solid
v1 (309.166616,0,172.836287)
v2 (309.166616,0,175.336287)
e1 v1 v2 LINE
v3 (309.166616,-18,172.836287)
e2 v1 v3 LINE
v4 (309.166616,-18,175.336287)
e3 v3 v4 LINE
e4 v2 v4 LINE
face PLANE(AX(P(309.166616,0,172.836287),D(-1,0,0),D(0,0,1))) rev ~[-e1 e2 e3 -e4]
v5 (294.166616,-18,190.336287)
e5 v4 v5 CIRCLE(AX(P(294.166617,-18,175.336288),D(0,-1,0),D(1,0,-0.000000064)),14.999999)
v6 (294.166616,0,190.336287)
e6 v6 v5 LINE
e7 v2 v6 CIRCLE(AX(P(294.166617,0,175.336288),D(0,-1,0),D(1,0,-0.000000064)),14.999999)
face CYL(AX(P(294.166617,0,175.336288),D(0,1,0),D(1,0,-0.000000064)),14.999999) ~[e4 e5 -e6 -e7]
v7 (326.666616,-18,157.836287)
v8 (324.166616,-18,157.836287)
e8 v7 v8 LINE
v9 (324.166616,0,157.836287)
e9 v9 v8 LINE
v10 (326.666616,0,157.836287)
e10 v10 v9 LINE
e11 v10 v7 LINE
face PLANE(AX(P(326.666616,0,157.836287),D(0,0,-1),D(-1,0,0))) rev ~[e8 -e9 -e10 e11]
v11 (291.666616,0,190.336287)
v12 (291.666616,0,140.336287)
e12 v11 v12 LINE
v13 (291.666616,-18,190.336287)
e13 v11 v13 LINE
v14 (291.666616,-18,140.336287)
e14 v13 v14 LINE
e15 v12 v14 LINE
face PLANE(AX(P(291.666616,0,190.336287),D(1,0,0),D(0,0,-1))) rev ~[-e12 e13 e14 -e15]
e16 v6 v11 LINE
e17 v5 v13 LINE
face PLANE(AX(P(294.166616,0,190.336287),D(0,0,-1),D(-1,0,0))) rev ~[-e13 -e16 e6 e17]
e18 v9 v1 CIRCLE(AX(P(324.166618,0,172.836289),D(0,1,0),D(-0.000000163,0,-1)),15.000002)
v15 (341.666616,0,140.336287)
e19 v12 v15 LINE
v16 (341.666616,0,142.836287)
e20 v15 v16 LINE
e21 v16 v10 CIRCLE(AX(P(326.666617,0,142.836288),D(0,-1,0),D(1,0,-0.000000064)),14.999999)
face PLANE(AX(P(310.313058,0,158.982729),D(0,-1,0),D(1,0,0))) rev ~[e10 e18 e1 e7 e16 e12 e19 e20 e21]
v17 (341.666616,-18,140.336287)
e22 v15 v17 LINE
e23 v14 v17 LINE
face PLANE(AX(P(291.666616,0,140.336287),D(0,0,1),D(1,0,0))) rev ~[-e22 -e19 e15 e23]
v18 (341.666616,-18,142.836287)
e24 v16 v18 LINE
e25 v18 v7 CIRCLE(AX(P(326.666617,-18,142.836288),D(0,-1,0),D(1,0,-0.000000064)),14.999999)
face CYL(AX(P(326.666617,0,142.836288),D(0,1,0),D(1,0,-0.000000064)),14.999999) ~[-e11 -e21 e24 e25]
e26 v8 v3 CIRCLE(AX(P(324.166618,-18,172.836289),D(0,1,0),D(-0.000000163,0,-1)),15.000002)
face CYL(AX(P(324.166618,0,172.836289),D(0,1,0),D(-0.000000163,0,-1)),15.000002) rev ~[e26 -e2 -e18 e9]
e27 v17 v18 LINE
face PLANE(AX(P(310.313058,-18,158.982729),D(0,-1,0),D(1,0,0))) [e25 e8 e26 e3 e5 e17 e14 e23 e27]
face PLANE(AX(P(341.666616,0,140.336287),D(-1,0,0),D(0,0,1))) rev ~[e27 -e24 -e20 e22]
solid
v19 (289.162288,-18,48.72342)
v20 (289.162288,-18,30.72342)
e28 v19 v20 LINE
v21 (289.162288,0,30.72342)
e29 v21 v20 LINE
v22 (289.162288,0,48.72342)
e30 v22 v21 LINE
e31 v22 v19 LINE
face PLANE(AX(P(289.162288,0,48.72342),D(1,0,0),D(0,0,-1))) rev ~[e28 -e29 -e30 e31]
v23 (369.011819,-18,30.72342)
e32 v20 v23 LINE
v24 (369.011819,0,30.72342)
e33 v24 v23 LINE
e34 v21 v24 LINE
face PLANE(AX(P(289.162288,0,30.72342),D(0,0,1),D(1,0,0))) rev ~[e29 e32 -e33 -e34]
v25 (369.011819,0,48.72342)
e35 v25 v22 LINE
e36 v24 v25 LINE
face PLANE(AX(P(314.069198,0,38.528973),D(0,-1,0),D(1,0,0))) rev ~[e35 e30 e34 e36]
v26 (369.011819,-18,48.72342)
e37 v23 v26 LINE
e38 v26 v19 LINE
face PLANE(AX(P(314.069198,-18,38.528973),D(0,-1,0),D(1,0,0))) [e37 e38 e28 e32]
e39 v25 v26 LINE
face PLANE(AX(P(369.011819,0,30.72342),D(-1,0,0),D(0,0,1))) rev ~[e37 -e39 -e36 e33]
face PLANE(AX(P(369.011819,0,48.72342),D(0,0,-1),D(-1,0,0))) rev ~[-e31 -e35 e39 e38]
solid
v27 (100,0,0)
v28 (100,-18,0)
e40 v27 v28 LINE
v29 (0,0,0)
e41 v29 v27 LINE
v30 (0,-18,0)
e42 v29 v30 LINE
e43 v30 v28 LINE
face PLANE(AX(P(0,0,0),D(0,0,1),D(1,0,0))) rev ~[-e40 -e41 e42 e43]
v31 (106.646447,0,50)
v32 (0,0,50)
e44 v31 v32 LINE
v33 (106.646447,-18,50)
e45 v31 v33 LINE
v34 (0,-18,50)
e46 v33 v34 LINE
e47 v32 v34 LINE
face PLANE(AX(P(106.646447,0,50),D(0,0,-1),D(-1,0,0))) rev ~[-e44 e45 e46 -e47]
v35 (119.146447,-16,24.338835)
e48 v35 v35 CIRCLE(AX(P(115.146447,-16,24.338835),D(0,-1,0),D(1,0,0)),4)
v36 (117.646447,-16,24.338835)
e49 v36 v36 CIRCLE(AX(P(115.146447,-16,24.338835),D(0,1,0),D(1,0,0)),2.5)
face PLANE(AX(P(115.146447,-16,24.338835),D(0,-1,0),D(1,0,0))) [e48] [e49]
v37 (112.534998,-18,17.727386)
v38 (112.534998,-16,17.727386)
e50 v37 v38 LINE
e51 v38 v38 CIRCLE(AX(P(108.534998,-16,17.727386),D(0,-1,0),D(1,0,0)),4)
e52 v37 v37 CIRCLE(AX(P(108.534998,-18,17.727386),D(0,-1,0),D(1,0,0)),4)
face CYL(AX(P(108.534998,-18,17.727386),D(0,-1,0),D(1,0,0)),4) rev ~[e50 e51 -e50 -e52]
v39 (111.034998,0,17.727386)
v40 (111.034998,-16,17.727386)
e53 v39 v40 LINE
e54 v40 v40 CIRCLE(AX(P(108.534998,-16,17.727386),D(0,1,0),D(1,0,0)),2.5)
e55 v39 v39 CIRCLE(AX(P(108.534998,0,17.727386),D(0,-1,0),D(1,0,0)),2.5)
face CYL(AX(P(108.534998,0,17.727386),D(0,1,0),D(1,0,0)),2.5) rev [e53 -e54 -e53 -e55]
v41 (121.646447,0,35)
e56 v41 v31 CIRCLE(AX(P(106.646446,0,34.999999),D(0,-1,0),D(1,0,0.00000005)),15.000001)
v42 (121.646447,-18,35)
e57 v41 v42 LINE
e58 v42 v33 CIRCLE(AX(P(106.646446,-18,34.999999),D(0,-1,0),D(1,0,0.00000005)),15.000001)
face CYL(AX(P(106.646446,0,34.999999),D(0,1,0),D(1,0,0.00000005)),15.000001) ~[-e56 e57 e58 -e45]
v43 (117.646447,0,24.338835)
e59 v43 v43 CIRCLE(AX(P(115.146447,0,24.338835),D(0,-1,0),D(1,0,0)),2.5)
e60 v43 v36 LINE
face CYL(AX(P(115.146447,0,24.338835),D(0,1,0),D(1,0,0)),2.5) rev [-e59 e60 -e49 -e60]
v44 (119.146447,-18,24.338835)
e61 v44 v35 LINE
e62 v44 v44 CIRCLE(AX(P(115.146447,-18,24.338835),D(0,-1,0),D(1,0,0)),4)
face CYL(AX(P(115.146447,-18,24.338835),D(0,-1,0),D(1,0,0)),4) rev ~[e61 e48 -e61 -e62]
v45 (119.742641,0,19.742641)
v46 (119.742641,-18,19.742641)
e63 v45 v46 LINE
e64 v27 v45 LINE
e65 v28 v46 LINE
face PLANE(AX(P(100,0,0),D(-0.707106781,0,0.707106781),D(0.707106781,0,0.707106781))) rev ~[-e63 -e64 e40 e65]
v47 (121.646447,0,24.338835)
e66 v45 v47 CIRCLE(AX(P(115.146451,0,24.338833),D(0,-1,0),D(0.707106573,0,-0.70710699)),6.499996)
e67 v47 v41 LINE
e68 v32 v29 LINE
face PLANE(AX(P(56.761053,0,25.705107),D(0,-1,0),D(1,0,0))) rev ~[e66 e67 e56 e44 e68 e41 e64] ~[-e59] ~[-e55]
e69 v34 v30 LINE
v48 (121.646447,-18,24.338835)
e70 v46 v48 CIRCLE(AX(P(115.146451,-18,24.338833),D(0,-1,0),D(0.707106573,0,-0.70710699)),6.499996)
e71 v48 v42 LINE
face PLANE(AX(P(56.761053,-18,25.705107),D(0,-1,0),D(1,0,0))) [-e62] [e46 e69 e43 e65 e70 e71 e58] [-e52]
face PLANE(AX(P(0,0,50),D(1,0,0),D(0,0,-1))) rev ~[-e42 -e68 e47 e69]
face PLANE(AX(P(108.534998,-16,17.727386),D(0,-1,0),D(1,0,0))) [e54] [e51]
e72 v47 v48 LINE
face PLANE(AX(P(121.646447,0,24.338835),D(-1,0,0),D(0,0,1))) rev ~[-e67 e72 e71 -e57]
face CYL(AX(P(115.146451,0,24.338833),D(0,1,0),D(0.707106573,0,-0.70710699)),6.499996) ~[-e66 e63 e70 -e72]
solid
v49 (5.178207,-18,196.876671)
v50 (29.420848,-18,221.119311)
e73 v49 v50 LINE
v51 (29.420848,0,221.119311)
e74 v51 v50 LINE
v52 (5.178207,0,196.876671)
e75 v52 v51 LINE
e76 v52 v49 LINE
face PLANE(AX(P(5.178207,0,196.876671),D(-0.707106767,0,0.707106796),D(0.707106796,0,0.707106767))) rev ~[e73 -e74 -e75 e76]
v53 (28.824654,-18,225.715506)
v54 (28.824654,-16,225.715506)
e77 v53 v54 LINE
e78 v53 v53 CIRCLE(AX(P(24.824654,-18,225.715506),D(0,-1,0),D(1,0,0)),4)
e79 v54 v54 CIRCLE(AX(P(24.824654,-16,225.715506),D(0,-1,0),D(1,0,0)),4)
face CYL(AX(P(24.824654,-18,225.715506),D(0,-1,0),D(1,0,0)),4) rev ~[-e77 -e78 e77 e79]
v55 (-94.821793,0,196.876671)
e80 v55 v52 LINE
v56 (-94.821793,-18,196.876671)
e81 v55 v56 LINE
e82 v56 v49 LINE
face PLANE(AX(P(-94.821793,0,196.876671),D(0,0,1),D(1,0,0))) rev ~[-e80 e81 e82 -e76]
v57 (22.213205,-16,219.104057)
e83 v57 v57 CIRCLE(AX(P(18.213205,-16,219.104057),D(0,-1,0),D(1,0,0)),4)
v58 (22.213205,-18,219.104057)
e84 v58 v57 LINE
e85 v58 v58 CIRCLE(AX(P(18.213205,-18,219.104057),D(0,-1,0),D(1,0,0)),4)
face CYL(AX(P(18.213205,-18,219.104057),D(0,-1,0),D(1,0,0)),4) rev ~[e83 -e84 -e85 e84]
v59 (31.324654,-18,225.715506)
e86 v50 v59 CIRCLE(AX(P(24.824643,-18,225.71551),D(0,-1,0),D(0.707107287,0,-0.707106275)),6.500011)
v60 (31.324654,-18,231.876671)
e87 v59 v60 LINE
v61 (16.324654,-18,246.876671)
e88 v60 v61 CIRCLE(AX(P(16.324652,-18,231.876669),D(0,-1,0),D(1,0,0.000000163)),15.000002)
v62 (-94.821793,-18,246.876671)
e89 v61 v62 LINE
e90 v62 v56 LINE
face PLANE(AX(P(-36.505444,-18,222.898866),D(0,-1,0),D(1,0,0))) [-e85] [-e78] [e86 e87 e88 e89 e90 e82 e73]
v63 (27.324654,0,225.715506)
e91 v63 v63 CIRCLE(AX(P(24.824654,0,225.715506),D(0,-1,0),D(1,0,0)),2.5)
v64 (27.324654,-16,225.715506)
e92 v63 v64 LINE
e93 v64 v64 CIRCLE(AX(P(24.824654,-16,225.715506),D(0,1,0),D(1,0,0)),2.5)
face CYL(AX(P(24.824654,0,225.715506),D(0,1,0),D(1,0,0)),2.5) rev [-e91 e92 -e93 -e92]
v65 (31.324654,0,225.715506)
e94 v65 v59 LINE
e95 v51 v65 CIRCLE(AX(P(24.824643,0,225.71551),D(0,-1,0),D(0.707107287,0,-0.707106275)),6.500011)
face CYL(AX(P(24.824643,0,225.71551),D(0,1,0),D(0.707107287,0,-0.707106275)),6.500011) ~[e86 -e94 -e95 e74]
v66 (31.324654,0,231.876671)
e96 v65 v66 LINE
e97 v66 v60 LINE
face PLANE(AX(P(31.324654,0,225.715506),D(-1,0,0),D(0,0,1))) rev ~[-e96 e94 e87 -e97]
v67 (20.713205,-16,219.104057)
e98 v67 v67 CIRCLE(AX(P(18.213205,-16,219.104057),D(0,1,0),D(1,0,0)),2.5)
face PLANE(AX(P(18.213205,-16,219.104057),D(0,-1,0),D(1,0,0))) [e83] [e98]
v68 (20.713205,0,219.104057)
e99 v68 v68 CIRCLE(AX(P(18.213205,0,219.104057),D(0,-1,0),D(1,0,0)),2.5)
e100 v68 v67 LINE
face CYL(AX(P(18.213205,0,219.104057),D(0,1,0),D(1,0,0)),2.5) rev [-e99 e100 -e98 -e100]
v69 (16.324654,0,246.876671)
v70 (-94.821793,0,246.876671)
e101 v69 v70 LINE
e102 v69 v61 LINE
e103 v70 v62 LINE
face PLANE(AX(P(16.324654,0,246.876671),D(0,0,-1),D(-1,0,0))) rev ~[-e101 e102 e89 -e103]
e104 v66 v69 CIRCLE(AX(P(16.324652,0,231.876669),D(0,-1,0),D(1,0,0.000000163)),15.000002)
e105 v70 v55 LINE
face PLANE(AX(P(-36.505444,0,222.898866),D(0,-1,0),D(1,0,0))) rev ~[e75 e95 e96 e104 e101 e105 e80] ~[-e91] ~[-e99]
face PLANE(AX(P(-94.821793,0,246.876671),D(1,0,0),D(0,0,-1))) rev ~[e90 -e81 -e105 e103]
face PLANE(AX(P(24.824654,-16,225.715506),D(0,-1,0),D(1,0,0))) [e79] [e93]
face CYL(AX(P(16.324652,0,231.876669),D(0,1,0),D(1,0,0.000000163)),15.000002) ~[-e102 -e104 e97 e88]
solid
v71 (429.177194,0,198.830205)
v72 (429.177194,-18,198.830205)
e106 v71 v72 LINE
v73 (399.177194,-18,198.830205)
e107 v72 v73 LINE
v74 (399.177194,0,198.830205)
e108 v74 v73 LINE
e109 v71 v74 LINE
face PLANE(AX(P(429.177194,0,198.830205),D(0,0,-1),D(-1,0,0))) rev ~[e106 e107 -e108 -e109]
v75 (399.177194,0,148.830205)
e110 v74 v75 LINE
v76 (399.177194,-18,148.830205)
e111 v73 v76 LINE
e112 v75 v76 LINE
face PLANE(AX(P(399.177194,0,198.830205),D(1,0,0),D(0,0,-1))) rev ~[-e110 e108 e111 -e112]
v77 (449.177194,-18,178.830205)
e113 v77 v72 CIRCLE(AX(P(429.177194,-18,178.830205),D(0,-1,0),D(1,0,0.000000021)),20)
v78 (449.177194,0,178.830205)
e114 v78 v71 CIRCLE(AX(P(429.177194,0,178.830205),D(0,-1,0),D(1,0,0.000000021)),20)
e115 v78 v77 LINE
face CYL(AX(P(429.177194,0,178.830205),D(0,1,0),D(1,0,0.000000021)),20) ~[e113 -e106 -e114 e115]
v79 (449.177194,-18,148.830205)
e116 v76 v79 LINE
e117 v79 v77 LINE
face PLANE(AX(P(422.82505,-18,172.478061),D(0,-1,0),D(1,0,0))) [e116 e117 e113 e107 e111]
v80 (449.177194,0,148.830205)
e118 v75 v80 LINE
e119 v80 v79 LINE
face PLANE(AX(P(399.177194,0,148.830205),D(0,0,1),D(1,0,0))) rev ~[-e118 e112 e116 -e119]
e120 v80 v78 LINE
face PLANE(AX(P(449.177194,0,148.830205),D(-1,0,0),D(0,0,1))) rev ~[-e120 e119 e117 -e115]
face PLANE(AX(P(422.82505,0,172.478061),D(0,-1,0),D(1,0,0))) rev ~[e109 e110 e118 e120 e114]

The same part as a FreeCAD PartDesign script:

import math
import FreeCAD as App
import Part
import Sketcher
Q = App.Units.Quantity

doc = App.newDocument("Part")
body = doc.addObject("PartDesign::Body", "Body")
body.AllowCompound = True

# Sketch on XZ plane
sketch1 = doc.addObject("Sketcher::SketchObject", "Sketch")
body.addObject(sketch1)
sketch1.AttachmentSupport = (doc.XZ_Plane, [""])
sketch1.MapMode = "FlatFace"
sketch1.addGeometry([
    Part.LineSegment(App.Vector(0, 50, 0), App.Vector(0, 0, 0)),  # 0
    Part.LineSegment(App.Vector(0, 0, 0), App.Vector(100, 0, 0)),  # 1
    Part.LineSegment(App.Vector(100, 0, 0), App.Vector(119.742641, 19.742641, 0)),  # 2
    Part.ArcOfCircle(Part.Circle(App.Vector(115.146451, 24.338833, 0), App.Vector(0, 0, 1), 6.499996), math.radians(-45.000017), math.radians(0.000015)),  # 3
    Part.LineSegment(App.Vector(121.646447, 24.338835, 0), App.Vector(121.646447, 35, 0)),  # 4
    Part.ArcOfCircle(Part.Circle(App.Vector(106.646446, 34.999999, 0), App.Vector(0, 0, 1), 15.000001), math.radians(0.000003), math.radians(89.999997)),  # 5
    Part.LineSegment(App.Vector(106.646447, 50, 0), App.Vector(0, 50, 0)),  # 6
    Part.Circle(App.Vector(108.534998, 17.727386, 0), App.Vector(0, 0, 1), 2.5),  # 7
    Part.Circle(App.Vector(115.146447, 24.338835, 0), App.Vector(0, 0, 1), 2.5),  # 8
    Part.LineSegment(App.Vector(289.162288, 48.72342, 0), App.Vector(289.162288, 30.72342, 0)),  # 9
    Part.LineSegment(App.Vector(289.162288, 30.72342, 0), App.Vector(369.011819, 30.72342, 0)),  # 10
    Part.LineSegment(App.Vector(369.011819, 30.72342, 0), App.Vector(369.011819, 48.72342, 0)),  # 11
    Part.LineSegment(App.Vector(369.011819, 48.72342, 0), App.Vector(289.162288, 48.72342, 0)),  # 12
    Part.LineSegment(App.Vector(-94.821793, 246.876671, 0), App.Vector(-94.821793, 196.876671, 0)),  # 13
    Part.LineSegment(App.Vector(-94.821793, 196.876671, 0), App.Vector(5.178207, 196.876671, 0)),  # 14
    Part.LineSegment(App.Vector(5.178207, 196.876671, 0), App.Vector(29.420848, 221.119311, 0)),  # 15
    Part.ArcOfCircle(Part.Circle(App.Vector(24.824643, 225.71551, 0), App.Vector(0, 0, 1), 6.500011), math.radians(-44.999959), math.radians(-0.000035)),  # 16
    Part.LineSegment(App.Vector(31.324654, 225.715506, 0), App.Vector(31.324654, 231.876671, 0)),  # 17
    Part.ArcOfCircle(Part.Circle(App.Vector(16.324652, 231.876669, 0), App.Vector(0, 0, 1), 15.000002), math.radians(0.000009), math.radians(89.999991)),  # 18
    Part.LineSegment(App.Vector(16.324654, 246.876671, 0), App.Vector(-94.821793, 246.876671, 0)),  # 19
    Part.Circle(App.Vector(18.213205, 219.104057, 0), App.Vector(0, 0, 1), 2.5),  # 20
    Part.Circle(App.Vector(24.824654, 225.715506, 0), App.Vector(0, 0, 1), 2.5),  # 21
    Part.LineSegment(App.Vector(291.666616, 190.336287, 0), App.Vector(291.666616, 140.336287, 0)),  # 22
    Part.LineSegment(App.Vector(291.666616, 140.336287, 0), App.Vector(341.666616, 140.336287, 0)),  # 23
    Part.LineSegment(App.Vector(341.666616, 140.336287, 0), App.Vector(341.666616, 142.836287, 0)),  # 24
    Part.ArcOfCircle(Part.Circle(App.Vector(326.666617, 142.836288, 0), App.Vector(0, 0, 1), 14.999999), math.radians(-0.000004), math.radians(90.000004)),  # 25
    Part.LineSegment(App.Vector(326.666616, 157.836287, 0), App.Vector(324.166616, 157.836287, 0)),  # 26
    Part.ArcOfCircle(Part.Circle(App.Vector(324.166618, 172.836289, 0), App.Vector(0, 0, 1), 15.000002), math.radians(-179.999991), math.radians(-90.000009)),  # 27
    Part.LineSegment(App.Vector(309.166616, 172.836287, 0), App.Vector(309.166616, 175.336287, 0)),  # 28
    Part.ArcOfCircle(Part.Circle(App.Vector(294.166617, 175.336288, 0), App.Vector(0, 0, 1), 14.999999), math.radians(-0.000004), math.radians(90.000004)),  # 29
    Part.LineSegment(App.Vector(294.166616, 190.336287, 0), App.Vector(291.666616, 190.336287, 0)),  # 30
    Part.LineSegment(App.Vector(399.177194, 198.830205, 0), App.Vector(399.177194, 148.830205, 0)),  # 31
    Part.LineSegment(App.Vector(399.177194, 148.830205, 0), App.Vector(449.177194, 148.830205, 0)),  # 32
    Part.LineSegment(App.Vector(449.177194, 148.830205, 0), App.Vector(449.177194, 178.830205, 0)),  # 33
    Part.ArcOfCircle(Part.Circle(App.Vector(429.177194, 178.830205, 0), App.Vector(0, 0, 1), 20), math.radians(0.000001), math.radians(89.999999)),  # 34
    Part.LineSegment(App.Vector(429.177194, 198.830205, 0), App.Vector(399.177194, 198.830205, 0)),  # 35
], False)
sketch1.addConstraint([
    Sketcher.Constraint("Coincident", 0, 2, 1, 1),
    Sketcher.Constraint("Coincident", 1, 2, 2, 1),
    Sketcher.Constraint("Tangent", 2, 2, 3, 1),
    Sketcher.Constraint("Tangent", 3, 2, 4, 1),
    Sketcher.Constraint("Tangent", 4, 2, 5, 1),
    Sketcher.Constraint("Tangent", 5, 2, 6, 1),
    Sketcher.Constraint("Coincident", 6, 2, 0, 1),
    Sketcher.Constraint("Coincident", 9, 2, 10, 1),
    Sketcher.Constraint("Coincident", 10, 2, 11, 1),
    Sketcher.Constraint("Coincident", 11, 2, 12, 1),
    Sketcher.Constraint("Coincident", 12, 2, 9, 1),
    Sketcher.Constraint("Coincident", 13, 2, 14, 1),
    Sketcher.Constraint("Coincident", 14, 2, 15, 1),
    Sketcher.Constraint("Tangent", 15, 2, 16, 1),
    Sketcher.Constraint("Tangent", 16, 2, 17, 1),
    Sketcher.Constraint("Tangent", 17, 2, 18, 1),
    Sketcher.Constraint("Tangent", 18, 2, 19, 1),
    Sketcher.Constraint("Coincident", 19, 2, 13, 1),
    Sketcher.Constraint("Coincident", 22, 2, 23, 1),
    Sketcher.Constraint("Coincident", 23, 2, 24, 1),
    Sketcher.Constraint("Tangent", 24, 2, 25, 1),
    Sketcher.Constraint("Tangent", 25, 2, 26, 1),
    Sketcher.Constraint("Tangent", 26, 2, 27, 2),
    Sketcher.Constraint("Tangent", 27, 1, 28, 1),
    Sketcher.Constraint("Tangent", 28, 2, 29, 1),
    Sketcher.Constraint("Tangent", 29, 2, 30, 1),
    Sketcher.Constraint("Coincident", 30, 2, 22, 1),
    Sketcher.Constraint("Coincident", 31, 2, 32, 1),
    Sketcher.Constraint("Coincident", 32, 2, 33, 1),
    Sketcher.Constraint("Tangent", 33, 2, 34, 1),
    Sketcher.Constraint("Tangent", 34, 2, 35, 1),
    Sketcher.Constraint("Coincident", 35, 2, 31, 1),
    Sketcher.Constraint("Vertical", 0),
    Sketcher.Constraint("Horizontal", 1),
    Sketcher.Constraint("Vertical", 4),
    Sketcher.Constraint("Horizontal", 6),
    Sketcher.Constraint("Vertical", 9),
    Sketcher.Constraint("Horizontal", 10),
    Sketcher.Constraint("Vertical", 11),
    Sketcher.Constraint("Horizontal", 12),
    Sketcher.Constraint("Vertical", 13),
    Sketcher.Constraint("Horizontal", 14),
    Sketcher.Constraint("Vertical", 17),
    Sketcher.Constraint("Horizontal", 19),
    Sketcher.Constraint("Vertical", 22),
    Sketcher.Constraint("Horizontal", 23),
    Sketcher.Constraint("Vertical", 24),
    Sketcher.Constraint("Horizontal", 26),
    Sketcher.Constraint("Vertical", 28),
    Sketcher.Constraint("Horizontal", 30),
    Sketcher.Constraint("Vertical", 31),
    Sketcher.Constraint("Horizontal", 32),
    Sketcher.Constraint("Vertical", 33),
    Sketcher.Constraint("Horizontal", 35),
    Sketcher.Constraint("Coincident", 0, 2, -1, 1),
    Sketcher.Constraint("Coincident", 8, 3, 3, 3),
    Sketcher.Constraint("Equal", 7, 8),
    Sketcher.Constraint("Equal", 5, 18),
    Sketcher.Constraint("Equal", 8, 20),
    Sketcher.Constraint("Equal", 20, 21),
    Sketcher.Constraint("Equal", 5, 25),
    Sketcher.Constraint("Equal", 18, 27),
    Sketcher.Constraint("Equal", 25, 29),
    Sketcher.Constraint("Parallel", 2, 15),
    Sketcher.Constraint("Horizontal", 21, 3, 16, 2),
    Sketcher.Constraint("Equal", 1, 14),
    Sketcher.Constraint("Equal", 26, 30),
    Sketcher.Constraint("Equal", 23, 32),
    Sketcher.Constraint("Equal", 32, 0),
    Sketcher.Constraint("Equal", 0, 13),
    Sketcher.Constraint("Equal", 13, 22),
    Sketcher.Constraint("Equal", 30, 24),
    Sketcher.Constraint("Equal", 22, 31),
    Sketcher.Constraint("Diameter", 7, Q("5 mm")),
    Sketcher.Constraint("Radius", 5, Q("15.000001 mm")),
    Sketcher.Constraint("Radius", 34, Q("20 mm")),
    Sketcher.Constraint("DistanceX", 1, 1, 1, 2, Q("100 mm")),
    Sketcher.Constraint("DistanceX", 23, 1, 23, 2, Q("50 mm")),
    Sketcher.Constraint("DistanceY", 9, 2, 9, 1, Q("18 mm")),
    Sketcher.Constraint("Angle", 2, Q("45 deg")),
    Sketcher.Constraint("DistanceX", 5, 3, 8, 3, Q("8.500001 mm")),
    Sketcher.Constraint("DistanceX", 21, 3, 16, 2, Q("6.5 mm")),
    Sketcher.Constraint("Radius", 16, Q("6.500011 mm")),
    Sketcher.Constraint("DistanceX", -1, 1, 7, 3, Q("108.534998 mm")),
    Sketcher.Constraint("DistanceX", 13, 2, 20, 3, Q("113.034998 mm")),
    Sketcher.Constraint("DistanceX", 10, 1, 10, 2, Q("79.849531 mm")),
    Sketcher.Constraint("DistanceX", 18, 3, 3, 3, Q("98.8218 mm")),
    Sketcher.Constraint("DistanceY", 7, 3, 25, 3, Q("125.108902 mm")),
    Sketcher.Constraint("DistanceX", 25, 3, 10, 2, Q("42.345202 mm")),
    Sketcher.Constraint("Distance", 2, Q("27.920311 mm")),
    Sketcher.Constraint("Distance", 15, Q("34.284271 mm")),
    Sketcher.Constraint("DistanceY", -1, 1, 16, 3, Q("225.71551 mm")),
    Sketcher.Constraint("DistanceX", -1, 1, 27, 3, Q("324.166618 mm")),
    Sketcher.Constraint("DistanceY", -1, 1, 27, 3, Q("172.836289 mm")),
    Sketcher.Constraint("DistanceY", -1, 1, 9, 2, Q("30.72342 mm")),
    Sketcher.Constraint("DistanceY", 20, 3, 18, 3, Q("12.772612 mm")),
    Sketcher.Constraint("DistanceY", 3, 3, 34, 3, Q("154.491371 mm")),
    Sketcher.Constraint("DistanceX", 24, 2, 31, 2, Q("57.510578 mm")),
])
pad1 = doc.addObject("PartDesign::Pad", "Pad")
body.addObject(pad1)
pad1.Profile = sketch1
pad1.Length = 18

# Sketch on XZ plane
sketch2 = doc.addObject("Sketcher::SketchObject", "Sketch001")
body.addObject(sketch2)
sketch2.AttachmentSupport = (doc.XZ_Plane, [""])
sketch2.MapMode = "FlatFace"
sketch2.AttachmentOffset = App.Placement(App.Vector(0, 0, 18), App.Rotation())
sketch2.addGeometry([
    Part.Circle(App.Vector(18.213205, 219.104057, 0), App.Vector(0, 0, 1), 4),
    Part.Circle(App.Vector(24.824654, 225.715506, 0), App.Vector(0, 0, 1), 4),
    Part.Circle(App.Vector(115.146447, 24.338835, 0), App.Vector(0, 0, 1), 4),
    Part.Circle(App.Vector(108.534998, 17.727386, 0), App.Vector(0, 0, 1), 4),
], False)
sketch2.addConstraint([
    Sketcher.Constraint("Equal", 0, 1),
    Sketcher.Constraint("Equal", 1, 2),
    Sketcher.Constraint("Equal", 2, 3),
    Sketcher.Constraint("Diameter", 0, Q("8 mm")),
    Sketcher.Constraint("DistanceX", -1, 1, 3, 3, Q("108.534998 mm")),
    Sketcher.Constraint("DistanceX", 0, 3, 1, 3, Q("6.611449 mm")),
    Sketcher.Constraint("DistanceY", 0, 3, 1, 3, Q("6.611449 mm")),
    Sketcher.Constraint("DistanceX", 0, 3, 2, 3, Q("96.933242 mm")),
    Sketcher.Constraint("DistanceY", 2, 3, 1, 3, Q("201.376671 mm")),
    Sketcher.Constraint("DistanceX", 3, 3, 2, 3, Q("6.611449 mm")),
    Sketcher.Constraint("DistanceY", 3, 3, 2, 3, Q("6.611449 mm")),
    Sketcher.Constraint("DistanceY", -1, 1, 0, 3, Q("219.104057 mm")),
])
pocket1 = doc.addObject("PartDesign::Pocket", "Pocket")
body.addObject(pocket1)
pocket1.Profile = sketch2
pocket1.Length = 2

doc.recompute()
